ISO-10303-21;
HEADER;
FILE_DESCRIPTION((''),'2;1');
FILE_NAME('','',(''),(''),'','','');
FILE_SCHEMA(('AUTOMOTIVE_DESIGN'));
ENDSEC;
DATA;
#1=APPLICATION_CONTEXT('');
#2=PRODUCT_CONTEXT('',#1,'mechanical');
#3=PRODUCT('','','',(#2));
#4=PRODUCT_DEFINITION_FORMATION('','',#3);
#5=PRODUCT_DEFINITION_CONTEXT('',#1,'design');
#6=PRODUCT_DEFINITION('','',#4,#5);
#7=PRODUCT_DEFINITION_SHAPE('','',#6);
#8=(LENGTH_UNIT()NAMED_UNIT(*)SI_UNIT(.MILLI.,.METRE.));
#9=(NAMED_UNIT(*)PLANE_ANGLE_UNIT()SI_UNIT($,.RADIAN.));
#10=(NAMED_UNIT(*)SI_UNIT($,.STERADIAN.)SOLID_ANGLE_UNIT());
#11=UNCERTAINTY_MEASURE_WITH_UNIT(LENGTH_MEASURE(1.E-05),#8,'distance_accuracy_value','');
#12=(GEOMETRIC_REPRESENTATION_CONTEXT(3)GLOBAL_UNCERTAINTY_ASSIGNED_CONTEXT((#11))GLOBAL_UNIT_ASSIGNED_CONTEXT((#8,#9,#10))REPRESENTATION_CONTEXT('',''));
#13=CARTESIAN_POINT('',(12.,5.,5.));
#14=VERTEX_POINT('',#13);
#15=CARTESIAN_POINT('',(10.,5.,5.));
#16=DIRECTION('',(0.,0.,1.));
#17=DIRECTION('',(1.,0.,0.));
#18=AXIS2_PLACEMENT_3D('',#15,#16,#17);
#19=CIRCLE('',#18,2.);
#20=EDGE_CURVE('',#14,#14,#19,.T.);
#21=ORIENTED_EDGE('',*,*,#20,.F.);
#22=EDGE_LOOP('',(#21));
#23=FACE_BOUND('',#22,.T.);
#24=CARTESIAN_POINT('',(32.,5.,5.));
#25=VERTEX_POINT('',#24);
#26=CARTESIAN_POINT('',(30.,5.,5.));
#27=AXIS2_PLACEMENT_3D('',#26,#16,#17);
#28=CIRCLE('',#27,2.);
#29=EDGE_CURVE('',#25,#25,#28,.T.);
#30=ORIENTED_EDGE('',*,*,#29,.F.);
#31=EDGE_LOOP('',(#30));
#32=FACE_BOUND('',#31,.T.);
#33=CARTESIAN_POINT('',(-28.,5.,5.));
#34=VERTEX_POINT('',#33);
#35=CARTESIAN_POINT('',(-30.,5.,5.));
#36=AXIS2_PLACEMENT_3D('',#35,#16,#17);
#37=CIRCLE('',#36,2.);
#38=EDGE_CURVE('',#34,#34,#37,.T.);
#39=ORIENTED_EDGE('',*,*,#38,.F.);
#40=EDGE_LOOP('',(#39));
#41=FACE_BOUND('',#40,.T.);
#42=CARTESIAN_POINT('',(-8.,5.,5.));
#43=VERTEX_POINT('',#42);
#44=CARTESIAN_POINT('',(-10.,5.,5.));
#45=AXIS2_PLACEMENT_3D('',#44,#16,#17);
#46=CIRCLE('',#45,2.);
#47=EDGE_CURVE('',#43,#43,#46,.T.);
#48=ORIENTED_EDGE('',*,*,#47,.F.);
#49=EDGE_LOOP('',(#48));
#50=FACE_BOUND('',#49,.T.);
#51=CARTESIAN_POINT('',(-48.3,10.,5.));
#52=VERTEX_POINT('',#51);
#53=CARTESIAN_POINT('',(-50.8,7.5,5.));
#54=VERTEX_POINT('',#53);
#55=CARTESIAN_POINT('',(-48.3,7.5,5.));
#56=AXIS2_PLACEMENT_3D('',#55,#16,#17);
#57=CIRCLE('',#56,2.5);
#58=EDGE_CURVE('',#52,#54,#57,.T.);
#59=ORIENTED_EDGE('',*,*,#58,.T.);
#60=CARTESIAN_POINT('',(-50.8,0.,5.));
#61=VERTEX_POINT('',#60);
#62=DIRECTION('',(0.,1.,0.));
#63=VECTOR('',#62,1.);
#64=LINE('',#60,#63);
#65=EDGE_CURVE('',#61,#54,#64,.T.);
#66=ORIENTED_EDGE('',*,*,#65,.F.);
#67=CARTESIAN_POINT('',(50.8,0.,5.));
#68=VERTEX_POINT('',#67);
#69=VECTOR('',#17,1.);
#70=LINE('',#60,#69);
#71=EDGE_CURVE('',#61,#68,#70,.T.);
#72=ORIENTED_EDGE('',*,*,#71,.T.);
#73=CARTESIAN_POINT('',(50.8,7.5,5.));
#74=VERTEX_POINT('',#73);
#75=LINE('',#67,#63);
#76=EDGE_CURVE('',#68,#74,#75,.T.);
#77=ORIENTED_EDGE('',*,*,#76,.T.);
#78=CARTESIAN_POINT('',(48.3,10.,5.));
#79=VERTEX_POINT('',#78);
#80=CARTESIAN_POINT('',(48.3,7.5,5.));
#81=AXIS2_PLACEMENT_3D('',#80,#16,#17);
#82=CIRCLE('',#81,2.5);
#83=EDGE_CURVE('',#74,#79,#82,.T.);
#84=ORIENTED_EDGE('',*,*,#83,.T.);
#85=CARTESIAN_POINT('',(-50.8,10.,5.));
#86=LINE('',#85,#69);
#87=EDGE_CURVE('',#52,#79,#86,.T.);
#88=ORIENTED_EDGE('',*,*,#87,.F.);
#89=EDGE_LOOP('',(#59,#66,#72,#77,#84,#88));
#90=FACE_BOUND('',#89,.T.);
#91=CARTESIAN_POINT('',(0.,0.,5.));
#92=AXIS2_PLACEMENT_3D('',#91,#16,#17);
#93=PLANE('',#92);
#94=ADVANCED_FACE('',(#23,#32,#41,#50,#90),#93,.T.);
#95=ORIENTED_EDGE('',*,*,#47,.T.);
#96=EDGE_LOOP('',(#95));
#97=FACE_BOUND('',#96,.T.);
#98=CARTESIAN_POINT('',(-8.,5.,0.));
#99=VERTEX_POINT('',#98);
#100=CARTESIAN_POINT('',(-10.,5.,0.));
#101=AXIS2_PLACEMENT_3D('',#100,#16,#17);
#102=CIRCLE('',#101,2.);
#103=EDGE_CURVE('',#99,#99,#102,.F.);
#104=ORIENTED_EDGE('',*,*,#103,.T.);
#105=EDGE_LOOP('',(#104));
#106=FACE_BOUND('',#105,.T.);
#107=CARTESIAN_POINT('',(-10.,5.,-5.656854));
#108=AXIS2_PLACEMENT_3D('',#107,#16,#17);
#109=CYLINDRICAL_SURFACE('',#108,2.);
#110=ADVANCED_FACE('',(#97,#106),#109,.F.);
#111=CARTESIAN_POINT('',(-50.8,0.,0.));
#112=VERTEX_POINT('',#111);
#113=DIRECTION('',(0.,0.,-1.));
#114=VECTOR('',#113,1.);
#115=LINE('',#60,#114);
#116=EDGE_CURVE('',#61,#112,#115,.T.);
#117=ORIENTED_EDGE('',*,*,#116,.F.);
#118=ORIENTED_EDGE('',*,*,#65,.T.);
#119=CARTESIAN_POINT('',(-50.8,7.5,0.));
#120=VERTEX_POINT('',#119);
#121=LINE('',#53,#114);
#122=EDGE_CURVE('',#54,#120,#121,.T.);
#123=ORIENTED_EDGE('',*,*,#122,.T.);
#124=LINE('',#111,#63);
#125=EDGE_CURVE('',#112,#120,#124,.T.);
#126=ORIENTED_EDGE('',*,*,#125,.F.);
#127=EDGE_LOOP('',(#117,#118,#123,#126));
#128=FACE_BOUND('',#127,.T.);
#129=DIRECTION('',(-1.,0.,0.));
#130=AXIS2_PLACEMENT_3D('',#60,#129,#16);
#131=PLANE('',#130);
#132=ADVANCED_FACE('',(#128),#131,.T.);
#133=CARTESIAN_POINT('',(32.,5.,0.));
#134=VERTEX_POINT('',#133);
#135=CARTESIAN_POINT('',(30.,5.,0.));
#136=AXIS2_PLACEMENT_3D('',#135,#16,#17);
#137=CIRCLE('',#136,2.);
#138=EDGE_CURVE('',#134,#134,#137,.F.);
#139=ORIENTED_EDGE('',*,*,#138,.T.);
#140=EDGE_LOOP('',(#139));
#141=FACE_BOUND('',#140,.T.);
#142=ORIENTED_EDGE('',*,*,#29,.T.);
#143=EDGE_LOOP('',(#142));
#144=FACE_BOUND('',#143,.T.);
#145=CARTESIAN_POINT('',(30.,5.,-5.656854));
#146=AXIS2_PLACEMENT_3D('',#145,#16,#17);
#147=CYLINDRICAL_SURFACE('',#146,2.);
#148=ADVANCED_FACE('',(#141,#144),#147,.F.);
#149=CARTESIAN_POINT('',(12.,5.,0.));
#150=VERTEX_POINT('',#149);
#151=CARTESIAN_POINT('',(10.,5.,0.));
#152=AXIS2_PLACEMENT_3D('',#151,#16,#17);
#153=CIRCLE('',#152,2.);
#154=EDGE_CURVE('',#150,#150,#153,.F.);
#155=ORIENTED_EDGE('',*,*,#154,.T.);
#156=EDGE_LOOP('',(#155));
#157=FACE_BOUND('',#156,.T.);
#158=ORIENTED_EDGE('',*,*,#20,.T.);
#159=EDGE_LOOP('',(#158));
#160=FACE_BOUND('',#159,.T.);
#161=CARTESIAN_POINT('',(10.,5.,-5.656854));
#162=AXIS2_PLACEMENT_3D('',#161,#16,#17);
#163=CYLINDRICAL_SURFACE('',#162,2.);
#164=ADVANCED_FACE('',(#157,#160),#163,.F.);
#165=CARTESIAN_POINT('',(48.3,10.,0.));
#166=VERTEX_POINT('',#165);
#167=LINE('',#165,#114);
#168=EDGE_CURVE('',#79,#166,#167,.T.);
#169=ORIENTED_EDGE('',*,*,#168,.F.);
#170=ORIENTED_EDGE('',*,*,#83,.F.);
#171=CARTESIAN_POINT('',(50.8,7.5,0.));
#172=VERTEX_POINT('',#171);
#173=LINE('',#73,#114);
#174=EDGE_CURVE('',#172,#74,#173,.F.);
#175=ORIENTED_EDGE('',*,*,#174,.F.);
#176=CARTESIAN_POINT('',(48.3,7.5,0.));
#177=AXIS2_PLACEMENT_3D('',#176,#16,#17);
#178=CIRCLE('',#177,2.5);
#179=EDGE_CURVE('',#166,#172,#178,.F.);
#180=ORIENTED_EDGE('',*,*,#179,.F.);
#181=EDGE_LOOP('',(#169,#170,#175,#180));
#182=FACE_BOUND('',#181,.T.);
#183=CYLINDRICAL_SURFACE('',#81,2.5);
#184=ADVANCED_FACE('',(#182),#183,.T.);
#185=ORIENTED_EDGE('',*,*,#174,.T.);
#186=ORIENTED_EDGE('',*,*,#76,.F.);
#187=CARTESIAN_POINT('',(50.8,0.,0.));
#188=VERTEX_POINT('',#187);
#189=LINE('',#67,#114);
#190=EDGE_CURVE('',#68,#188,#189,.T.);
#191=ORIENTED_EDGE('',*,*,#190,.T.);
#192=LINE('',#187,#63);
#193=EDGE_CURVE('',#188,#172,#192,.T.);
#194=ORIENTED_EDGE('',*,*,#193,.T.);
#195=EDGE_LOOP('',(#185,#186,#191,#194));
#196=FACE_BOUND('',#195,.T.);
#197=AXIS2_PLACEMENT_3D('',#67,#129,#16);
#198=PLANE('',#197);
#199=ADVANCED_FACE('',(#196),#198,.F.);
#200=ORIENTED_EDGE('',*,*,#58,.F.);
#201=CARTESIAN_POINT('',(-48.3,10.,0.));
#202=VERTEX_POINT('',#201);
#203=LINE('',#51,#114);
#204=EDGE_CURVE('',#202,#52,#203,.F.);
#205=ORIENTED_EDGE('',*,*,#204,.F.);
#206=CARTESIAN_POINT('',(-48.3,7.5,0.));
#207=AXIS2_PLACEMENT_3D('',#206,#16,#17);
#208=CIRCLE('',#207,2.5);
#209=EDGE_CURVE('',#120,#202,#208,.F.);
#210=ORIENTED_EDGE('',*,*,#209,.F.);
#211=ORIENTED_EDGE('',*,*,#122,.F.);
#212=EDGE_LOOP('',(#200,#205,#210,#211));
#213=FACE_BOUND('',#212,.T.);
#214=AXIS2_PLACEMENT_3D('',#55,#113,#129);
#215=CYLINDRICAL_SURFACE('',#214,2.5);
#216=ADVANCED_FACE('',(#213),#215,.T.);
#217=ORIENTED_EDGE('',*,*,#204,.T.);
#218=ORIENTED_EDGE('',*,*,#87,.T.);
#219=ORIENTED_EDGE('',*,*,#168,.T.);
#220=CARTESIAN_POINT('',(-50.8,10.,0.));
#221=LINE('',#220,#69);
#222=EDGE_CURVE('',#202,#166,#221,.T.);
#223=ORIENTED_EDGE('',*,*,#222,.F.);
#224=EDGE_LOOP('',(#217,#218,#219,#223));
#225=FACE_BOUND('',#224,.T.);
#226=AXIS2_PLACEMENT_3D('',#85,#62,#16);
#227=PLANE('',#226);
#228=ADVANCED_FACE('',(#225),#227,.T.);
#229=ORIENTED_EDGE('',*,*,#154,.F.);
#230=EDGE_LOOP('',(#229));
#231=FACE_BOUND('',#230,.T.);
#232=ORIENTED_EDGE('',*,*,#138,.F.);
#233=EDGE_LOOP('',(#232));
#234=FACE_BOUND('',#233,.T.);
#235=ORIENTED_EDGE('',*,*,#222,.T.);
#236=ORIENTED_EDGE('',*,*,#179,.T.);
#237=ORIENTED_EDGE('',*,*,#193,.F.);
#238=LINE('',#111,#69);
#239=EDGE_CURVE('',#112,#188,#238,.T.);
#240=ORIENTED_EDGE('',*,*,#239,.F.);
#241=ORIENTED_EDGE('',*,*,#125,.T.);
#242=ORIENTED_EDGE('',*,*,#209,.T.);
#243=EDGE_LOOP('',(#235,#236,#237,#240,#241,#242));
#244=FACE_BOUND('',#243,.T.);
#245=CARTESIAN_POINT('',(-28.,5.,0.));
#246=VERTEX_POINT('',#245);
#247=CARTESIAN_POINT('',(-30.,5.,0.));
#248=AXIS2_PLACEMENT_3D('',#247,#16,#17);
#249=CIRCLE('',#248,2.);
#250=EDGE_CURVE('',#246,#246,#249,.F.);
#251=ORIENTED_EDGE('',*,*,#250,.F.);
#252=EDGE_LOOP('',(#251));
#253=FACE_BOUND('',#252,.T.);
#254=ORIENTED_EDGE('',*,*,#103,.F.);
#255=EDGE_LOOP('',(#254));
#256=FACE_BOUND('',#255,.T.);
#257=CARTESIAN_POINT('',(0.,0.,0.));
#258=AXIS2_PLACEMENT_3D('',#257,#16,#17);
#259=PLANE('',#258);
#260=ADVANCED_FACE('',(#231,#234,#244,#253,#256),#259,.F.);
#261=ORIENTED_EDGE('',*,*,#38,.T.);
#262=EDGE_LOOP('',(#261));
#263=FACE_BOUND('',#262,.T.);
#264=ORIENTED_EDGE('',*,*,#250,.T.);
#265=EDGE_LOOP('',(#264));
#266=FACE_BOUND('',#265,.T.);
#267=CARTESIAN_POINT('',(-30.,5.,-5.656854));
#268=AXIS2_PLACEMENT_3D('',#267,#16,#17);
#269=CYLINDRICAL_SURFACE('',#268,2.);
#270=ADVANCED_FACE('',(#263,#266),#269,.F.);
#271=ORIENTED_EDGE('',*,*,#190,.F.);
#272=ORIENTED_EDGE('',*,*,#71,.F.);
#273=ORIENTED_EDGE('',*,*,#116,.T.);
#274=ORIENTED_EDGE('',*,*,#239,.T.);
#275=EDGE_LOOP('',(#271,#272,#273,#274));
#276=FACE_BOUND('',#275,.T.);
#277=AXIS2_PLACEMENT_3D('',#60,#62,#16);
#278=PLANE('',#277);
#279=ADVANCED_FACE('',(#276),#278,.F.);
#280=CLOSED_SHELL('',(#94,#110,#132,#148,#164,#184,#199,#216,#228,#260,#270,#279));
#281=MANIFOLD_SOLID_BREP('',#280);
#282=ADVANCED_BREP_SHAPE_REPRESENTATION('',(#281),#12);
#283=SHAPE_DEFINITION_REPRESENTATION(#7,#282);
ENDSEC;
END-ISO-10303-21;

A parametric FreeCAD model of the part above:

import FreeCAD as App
import Part
import Sketcher

V = App.Vector
Q = App.Units.Quantity


def edges_at(feature, points):
    """Names of the edges that pass closest to the given points."""
    edges = feature.Shape.Edges
    near = lambda p: min(range(len(edges)), key=lambda i: edges[i].distToShape(Part.Vertex(*p))[0])
    return sorted({f"Edge{near(p) + 1}" for p in points})

doc = App.newDocument("Part")
body = doc.addObject("PartDesign::Body", "Body")

sketch1 = body.newObject("Sketcher::SketchObject", "Sketch")
sketch1.AttachmentSupport = (doc.getObject("XY_Plane"), [""])
sketch1.MapMode = "FlatFace"
sketch1.addGeometry(Part.LineSegment(V(-51, 10, 0), V(-51, 0, 0)), False)
sketch1.addGeometry(Part.LineSegment(V(-51, 0, 0), V(51, 0, 0)), False)
sketch1.addGeometry(Part.LineSegment(V(51, 0, 0), V(51, 10, 0)), False)
sketch1.addGeometry(Part.LineSegment(V(51, 10, 0), V(-51, 10, 0)), False)
sketch1.addConstraint(Sketcher.Constraint("Coincident", 0, 2, 1, 1))
sketch1.addConstraint(Sketcher.Constraint("Coincident", 1, 2, 2, 1))
sketch1.addConstraint(Sketcher.Constraint("Coincident", 2, 2, 3, 1))
sketch1.addConstraint(Sketcher.Constraint("Coincident", 3, 2, 0, 1))
sketch1.addConstraint(Sketcher.Constraint("Vertical", 0))
sketch1.addConstraint(Sketcher.Constraint("Horizontal", 1))
sketch1.addConstraint(Sketcher.Constraint("Vertical", 2))
sketch1.addConstraint(Sketcher.Constraint("Horizontal", 3))
sketch1.addConstraint(Sketcher.Constraint("Symmetric", 0, 2, 1, 2, -1, 1))
sketch1.addConstraint(Sketcher.Constraint("DistanceY", 0, 2, 0, 1, Q("10 mm")))
sketch1.addConstraint(Sketcher.Constraint("DistanceX", 1, 1, 1, 2, Q("101.6 mm")))
pad1 = body.newObject("PartDesign::Pad", "Pad")
pad1.Profile = sketch1
pad1.Length = 5

sketch2 = body.newObject("Sketcher::SketchObject", "Sketch001")
sketch2.AttachmentSupport = (doc.getObject("XY_Plane"), [""])
sketch2.MapMode = "FlatFace"
sketch2.AttachmentOffset = App.Placement(V(0, 0, 5), App.Rotation())
sketch2.addGeometry(Part.Circle(V(-30, 5, 0), V(0, 0, 1), 2), False)
sketch2.addGeometry(Part.Circle(V(-10, 5, 0), V(0, 0, 1), 2), False)
sketch2.addGeometry(Part.Circle(V(10, 5, 0), V(0, 0, 1), 2), False)
sketch2.addGeometry(Part.Circle(V(30, 5, 0), V(0, 0, 1), 2), False)
sketch2.addConstraint(Sketcher.Constraint("Equal", 0, 1))
sketch2.addConstraint(Sketcher.Constraint("Equal", 1, 2))
sketch2.addConstraint(Sketcher.Constraint("Equal", 2, 3))
sketch2.addConstraint(Sketcher.Constraint("Symmetric", 1, 3, 2, 3, -2))
sketch2.addConstraint(Sketcher.Constraint("Symmetric", 0, 3, 3, 3, -2))
sketch2.addConstraint(Sketcher.Constraint("Horizontal", 0, 3, 1, 3))
sketch2.addConstraint(Sketcher.Constraint("Diameter", 0, Q("4 mm")))
sketch2.addConstraint(Sketcher.Constraint("DistanceX", 0, 3, -1, 1, Q("30 mm")))
sketch2.addConstraint(Sketcher.Constraint("DistanceY", -1, 1, 0, 3, Q("5 mm")))
sketch2.addConstraint(Sketcher.Constraint("DistanceX", 1, 3, -1, 1, Q("10 mm")))
pocket1 = body.newObject("PartDesign::Pocket", "Pocket")
pocket1.Profile = sketch2
pocket1.Length = 5
doc.recompute()

fillet = body.newObject("PartDesign::Fillet", "Fillet")
fillet.Base = (pocket1, edges_at(pocket1, [(-50.8, 10, 2.5), (50.8, 10, 2.5)]))
fillet.Radius = 2.5

doc.recompute()
